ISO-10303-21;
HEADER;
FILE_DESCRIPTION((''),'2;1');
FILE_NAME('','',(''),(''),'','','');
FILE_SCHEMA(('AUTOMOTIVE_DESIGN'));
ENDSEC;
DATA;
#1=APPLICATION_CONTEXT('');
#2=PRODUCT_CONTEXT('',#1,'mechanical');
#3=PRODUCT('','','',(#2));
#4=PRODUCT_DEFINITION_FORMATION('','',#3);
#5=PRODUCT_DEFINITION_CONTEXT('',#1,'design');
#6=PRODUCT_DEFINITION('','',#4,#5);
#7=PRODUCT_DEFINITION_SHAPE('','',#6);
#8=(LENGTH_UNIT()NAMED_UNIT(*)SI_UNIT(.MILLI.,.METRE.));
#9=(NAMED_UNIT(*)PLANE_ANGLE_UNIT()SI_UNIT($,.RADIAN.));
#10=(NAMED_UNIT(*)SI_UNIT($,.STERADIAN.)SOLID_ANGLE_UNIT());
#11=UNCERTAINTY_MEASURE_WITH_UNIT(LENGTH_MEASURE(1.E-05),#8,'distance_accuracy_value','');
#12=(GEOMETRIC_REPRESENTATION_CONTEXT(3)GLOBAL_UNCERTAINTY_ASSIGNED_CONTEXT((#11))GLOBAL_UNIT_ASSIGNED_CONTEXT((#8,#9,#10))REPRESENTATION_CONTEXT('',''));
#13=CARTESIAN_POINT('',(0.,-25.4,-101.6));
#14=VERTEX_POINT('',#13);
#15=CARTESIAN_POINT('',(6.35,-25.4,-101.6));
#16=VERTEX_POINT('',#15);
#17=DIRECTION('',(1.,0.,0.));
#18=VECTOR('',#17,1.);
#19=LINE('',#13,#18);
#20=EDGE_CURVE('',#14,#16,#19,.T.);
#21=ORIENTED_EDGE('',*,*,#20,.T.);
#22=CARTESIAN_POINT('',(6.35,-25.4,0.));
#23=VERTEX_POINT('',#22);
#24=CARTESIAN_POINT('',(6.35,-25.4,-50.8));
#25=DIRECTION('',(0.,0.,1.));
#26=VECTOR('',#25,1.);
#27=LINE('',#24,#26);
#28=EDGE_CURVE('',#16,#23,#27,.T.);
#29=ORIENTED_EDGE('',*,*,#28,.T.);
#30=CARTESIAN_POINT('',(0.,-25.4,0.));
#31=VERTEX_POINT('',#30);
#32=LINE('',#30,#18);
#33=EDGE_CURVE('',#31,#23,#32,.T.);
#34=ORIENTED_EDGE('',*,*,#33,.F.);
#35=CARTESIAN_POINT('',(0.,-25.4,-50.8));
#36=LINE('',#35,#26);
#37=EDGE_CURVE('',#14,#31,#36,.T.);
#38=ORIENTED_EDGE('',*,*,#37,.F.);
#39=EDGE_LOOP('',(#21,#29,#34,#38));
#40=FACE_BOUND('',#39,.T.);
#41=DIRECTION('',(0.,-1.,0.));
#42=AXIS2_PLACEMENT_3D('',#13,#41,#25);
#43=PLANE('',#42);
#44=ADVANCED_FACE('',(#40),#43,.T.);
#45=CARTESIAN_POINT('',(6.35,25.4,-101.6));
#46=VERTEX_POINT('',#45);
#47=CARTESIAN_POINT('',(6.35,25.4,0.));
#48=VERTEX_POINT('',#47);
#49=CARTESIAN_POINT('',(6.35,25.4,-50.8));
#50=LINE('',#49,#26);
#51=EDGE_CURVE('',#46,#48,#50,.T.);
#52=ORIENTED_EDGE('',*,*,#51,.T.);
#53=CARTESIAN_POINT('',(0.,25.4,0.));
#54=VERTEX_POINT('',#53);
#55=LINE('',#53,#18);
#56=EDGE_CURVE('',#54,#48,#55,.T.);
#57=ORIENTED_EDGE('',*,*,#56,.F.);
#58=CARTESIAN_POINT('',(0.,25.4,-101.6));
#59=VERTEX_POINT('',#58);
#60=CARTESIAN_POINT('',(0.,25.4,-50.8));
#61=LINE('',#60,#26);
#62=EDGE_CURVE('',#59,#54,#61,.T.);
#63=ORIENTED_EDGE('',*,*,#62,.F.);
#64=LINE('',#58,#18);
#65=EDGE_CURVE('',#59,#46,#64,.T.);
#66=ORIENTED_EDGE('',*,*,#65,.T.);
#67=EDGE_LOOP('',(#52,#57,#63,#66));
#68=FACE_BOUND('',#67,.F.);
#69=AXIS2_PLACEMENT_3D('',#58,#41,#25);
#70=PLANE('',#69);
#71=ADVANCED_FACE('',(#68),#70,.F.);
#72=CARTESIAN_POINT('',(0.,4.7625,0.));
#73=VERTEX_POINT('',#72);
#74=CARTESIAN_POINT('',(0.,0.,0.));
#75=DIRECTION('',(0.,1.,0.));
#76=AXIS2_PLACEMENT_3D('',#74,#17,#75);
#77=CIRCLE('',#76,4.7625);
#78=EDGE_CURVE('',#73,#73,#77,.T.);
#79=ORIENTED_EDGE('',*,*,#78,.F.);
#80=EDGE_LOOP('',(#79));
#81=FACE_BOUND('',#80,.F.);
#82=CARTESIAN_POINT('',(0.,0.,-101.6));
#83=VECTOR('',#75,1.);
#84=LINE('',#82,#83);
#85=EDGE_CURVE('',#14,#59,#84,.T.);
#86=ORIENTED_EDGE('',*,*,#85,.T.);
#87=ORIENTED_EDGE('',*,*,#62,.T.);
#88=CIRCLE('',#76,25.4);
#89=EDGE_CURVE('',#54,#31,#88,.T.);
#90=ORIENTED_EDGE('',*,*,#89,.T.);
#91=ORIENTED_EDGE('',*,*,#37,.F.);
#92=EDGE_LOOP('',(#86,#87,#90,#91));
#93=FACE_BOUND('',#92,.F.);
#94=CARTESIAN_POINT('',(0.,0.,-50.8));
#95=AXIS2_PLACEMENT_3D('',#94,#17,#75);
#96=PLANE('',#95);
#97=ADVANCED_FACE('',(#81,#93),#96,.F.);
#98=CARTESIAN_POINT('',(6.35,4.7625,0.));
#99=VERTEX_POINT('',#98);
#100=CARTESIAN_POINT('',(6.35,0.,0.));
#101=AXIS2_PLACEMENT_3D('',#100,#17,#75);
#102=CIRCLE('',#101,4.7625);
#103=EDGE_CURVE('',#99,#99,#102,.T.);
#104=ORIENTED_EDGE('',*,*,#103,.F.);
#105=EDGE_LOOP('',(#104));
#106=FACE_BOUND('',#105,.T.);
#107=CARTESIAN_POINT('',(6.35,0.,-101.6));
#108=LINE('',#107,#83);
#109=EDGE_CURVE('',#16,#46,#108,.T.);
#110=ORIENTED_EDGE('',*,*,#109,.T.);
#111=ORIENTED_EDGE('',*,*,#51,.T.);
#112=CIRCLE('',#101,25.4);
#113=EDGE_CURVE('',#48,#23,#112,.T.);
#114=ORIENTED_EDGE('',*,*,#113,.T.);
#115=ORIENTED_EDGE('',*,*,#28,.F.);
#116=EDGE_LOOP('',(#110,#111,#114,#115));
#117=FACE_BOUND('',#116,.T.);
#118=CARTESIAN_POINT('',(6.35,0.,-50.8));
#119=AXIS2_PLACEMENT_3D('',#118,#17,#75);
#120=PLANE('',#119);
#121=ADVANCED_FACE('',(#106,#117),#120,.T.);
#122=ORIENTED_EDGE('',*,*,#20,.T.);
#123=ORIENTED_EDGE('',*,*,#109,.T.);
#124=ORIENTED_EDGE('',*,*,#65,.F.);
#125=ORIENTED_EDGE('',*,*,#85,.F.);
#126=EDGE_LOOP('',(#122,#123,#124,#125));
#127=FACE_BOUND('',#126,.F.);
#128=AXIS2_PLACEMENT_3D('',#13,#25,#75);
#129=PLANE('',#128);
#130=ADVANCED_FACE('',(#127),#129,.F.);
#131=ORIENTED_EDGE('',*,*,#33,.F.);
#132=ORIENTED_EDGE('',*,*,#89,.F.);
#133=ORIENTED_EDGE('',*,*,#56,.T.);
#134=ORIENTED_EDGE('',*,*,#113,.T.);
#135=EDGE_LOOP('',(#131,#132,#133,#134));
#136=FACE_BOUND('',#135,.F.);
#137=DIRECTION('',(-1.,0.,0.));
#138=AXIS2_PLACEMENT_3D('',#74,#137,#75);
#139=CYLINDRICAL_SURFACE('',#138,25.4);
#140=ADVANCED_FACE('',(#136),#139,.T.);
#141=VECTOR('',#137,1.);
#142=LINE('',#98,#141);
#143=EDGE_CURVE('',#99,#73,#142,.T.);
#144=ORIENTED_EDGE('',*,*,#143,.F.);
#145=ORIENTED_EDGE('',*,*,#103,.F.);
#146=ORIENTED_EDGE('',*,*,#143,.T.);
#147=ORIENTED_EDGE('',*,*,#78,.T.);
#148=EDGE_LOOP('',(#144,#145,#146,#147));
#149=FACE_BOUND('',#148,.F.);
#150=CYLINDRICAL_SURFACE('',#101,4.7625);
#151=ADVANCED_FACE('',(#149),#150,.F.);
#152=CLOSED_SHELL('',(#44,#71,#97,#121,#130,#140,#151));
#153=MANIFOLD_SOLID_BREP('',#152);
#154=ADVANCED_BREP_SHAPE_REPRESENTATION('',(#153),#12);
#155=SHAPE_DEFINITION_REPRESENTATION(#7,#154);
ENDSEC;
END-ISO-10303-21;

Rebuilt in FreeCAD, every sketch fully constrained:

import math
import FreeCAD as App
import Part
import Sketcher

V = App.Vector
Q = App.Units.Quantity

doc = App.newDocument("Part")
body = doc.addObject("PartDesign::Body", "Body")

# Sketch on YZ plane
sketch1 = body.newObject("Sketcher::SketchObject", "Sketch")
sketch1.AttachmentSupport = (doc.getObject("YZ_Plane"), [""])
sketch1.MapMode = "FlatFace"
sketch1.addGeometry([
    Part.LineSegment(V(-25.4, 0, 0), V(-25.4, -101.6, 0)),
    Part.LineSegment(V(-25.4, -101.6, 0), V(25.4, -101.6, 0)),
    Part.LineSegment(V(25.4, -101.6, 0), V(25.4, 0, 0)),
    Part.ArcOfCircle(Part.Circle(V(0, 0, 0), V(0, 0, 1), 25.4), math.radians(0), math.radians(180)),
], False)
sketch1.addConstraint([
    Sketcher.Constraint("Coincident", 0, 2, 1, 1),
    Sketcher.Constraint("Coincident", 1, 2, 2, 1),
    Sketcher.Constraint("Tangent", 2, 2, 3, 1),
    Sketcher.Constraint("Tangent", 3, 2, 0, 1),
    Sketcher.Constraint("Vertical", 0),
    Sketcher.Constraint("Horizontal", 1),
    Sketcher.Constraint("Vertical", 2),
    Sketcher.Constraint("Coincident", 3, 3, -1, 1),
    Sketcher.Constraint("Radius", 3, Q("1 in")),
    Sketcher.Constraint("DistanceY", 0, 2, 0, 1, Q("4 in")),
])
pad1 = body.newObject("PartDesign::Pad", "Pad")
pad1.Profile = sketch1
pad1.Length = Q("0.25 in")

# Sketch on YZ plane
sketch2 = body.newObject("Sketcher::SketchObject", "Sketch001")
sketch2.AttachmentSupport = (doc.getObject("YZ_Plane"), [""])
sketch2.MapMode = "FlatFace"
sketch2.AttachmentOffset = App.Placement(V(0, 0, 0.25 * 25.4), App.Rotation())
sketch2.addGeometry(Part.Circle(V(0, 0, 0), V(0, 0, 1), 4.7625), False)
sketch2.addConstraint([
    Sketcher.Constraint("Coincident", 0, 3, -1, 1),
    Sketcher.Constraint("Diameter", 0, Q("0.375 in")),
])
pocket1 = body.newObject("PartDesign::Pocket", "Pocket")
pocket1.Profile = sketch2
pocket1.Type = "ThroughAll"

doc.recompute()
